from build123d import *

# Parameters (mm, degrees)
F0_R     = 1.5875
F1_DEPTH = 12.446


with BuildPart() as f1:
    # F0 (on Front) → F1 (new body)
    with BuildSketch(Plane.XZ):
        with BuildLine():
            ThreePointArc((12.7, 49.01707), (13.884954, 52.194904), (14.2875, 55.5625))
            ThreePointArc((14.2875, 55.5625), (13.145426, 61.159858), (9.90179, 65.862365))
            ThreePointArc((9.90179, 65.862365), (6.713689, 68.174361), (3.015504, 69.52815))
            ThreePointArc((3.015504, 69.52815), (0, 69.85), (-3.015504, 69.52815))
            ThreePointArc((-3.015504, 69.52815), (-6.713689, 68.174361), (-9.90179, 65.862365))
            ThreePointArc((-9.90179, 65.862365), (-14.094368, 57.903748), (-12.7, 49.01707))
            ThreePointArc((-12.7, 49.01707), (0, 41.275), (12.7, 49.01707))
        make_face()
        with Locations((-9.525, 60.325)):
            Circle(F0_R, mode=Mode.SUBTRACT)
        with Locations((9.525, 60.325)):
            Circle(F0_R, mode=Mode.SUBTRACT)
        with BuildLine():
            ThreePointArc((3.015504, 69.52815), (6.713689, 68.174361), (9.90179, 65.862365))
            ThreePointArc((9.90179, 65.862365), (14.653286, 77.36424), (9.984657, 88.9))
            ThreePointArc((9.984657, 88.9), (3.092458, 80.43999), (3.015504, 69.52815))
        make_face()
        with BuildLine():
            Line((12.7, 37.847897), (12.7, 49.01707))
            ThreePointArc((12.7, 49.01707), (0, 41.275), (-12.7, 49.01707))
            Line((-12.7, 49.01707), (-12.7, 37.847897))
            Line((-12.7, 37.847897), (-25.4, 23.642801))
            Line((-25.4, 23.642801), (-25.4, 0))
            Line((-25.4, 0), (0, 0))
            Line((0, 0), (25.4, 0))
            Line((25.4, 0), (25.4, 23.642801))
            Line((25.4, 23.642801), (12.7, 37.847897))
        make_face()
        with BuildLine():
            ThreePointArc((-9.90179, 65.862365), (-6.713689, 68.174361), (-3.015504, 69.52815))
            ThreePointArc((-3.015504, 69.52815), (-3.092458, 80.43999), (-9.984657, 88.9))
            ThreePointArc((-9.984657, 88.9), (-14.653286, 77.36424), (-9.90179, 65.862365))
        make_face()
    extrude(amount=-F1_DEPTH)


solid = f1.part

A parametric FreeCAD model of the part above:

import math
import FreeCAD as App
import Part
import Sketcher

V = App.Vector
Q = App.Units.Quantity

doc = App.newDocument("Part")
params = doc.addObject("Spreadsheet::Sheet", "Params")
for row, (alias, value) in enumerate([
    ("sketch1_width", "2 in"),
    ("sketch1_diameter", "0.125 in"),
    ("sketch1_radius", "0.5625 in"),
    ("pad1_length", "0.49 in"),
], start=1):
    params.set(f"A{row}", alias)
    params.set(f"B{row}", "=" + value)
    params.setAlias(f"B{row}", alias)

body = doc.addObject("PartDesign::Body", "Body")

sketch1 = body.newObject("Sketcher::SketchObject", "Sketch")
sketch1.AttachmentSupport = (doc.getObject("XZ_Plane"), [""])
sketch1.MapMode = "FlatFace"
sketch1.addGeometry([
    Part.ArcOfCircle(Part.Circle(V(-0.000006, 55.562502, 0), V(0, 0, 1), 14.287506), math.radians(-27.266039), math.radians(-0.000006)),
    Part.ArcOfCircle(Part.Circle(V(-0.000008, 55.562497, 0), V(0, 0, 1), 14.287508), math.radians(0.000012), math.radians(46.128857)),
    Part.ArcOfCircle(Part.Circle(V(-1.786819, 77.423376, 0), V(0, 0, 1), 16.440211), math.radians(-44.685553), math.radians(44.273366)),
    Part.ArcOfCircle(Part.Circle(V(18.562046, 74.874702, 0), V(0, 0, 1), 16.440213), math.radians(121.44852), math.radians(198.97841)),
    Part.ArcOfCircle(Part.Circle(V(0, 55.562519, 0), V(0, 0, 1), 14.287481), math.radians(77.81557), math.radians(102.18443)),
    Part.ArcOfCircle(Part.Circle(V(-18.562046, 74.874702, 0), V(0, 0, 1), 16.440213), math.radians(-18.97841), math.radians(58.55148)),
    Part.ArcOfCircle(Part.Circle(V(1.786819, 77.423376, 0), V(0, 0, 1), 16.440211), math.radians(135.726634), math.radians(224.685553)),
    Part.ArcOfCircle(Part.Circle(V(0.000001, 55.5625, 0), V(0, 0, 1), 14.287501), math.radians(133.871133), math.radians(207.266042)),
    Part.LineSegment(V(-12.7, 49.01707, 0), V(-12.7, 37.847897, 0)),
    Part.LineSegment(V(-12.7, 37.847897, 0), V(-25.4, 23.642801, 0)),
    Part.LineSegment(V(-25.4, 23.642801, 0), V(-25.4, 0, 0)),
    Part.LineSegment(V(-25.4, 0, 0), V(25.4, 0, 0)),
    Part.LineSegment(V(25.4, 0, 0), V(25.4, 23.642801, 0)),
    Part.LineSegment(V(25.4, 23.642801, 0), V(12.7, 37.847897, 0)),
    Part.LineSegment(V(12.7, 37.847897, 0), V(12.7, 49.01707, 0)),
    Part.Circle(V(-9.525, 60.325, 0), V(0, 0, 1), 1.5875),
    Part.Circle(V(9.525, 60.325, 0), V(0, 0, 1), 1.5875),
], False)
sketch1.addConstraint([
    Sketcher.Constraint("Tangent", 0, 2, 1, 1),
    Sketcher.Constraint("Coincident", 1, 2, 2, 1),
    Sketcher.Constraint("Coincident", 2, 2, 3, 1),
    Sketcher.Constraint("Coincident", 3, 2, 4, 1),
    Sketcher.Constraint("Coincident", 4, 2, 5, 1),
    Sketcher.Constraint("Coincident", 5, 2, 6, 1),
    Sketcher.Constraint("Coincident", 6, 2, 7, 1),
    Sketcher.Constraint("Coincident", 7, 2, 8, 1),
    Sketcher.Constraint("Coincident", 8, 2, 9, 1),
    Sketcher.Constraint("Coincident", 9, 2, 10, 1),
    Sketcher.Constraint("Coincident", 10, 2, 11, 1),
    Sketcher.Constraint("Coincident", 11, 2, 12, 1),
    Sketcher.Constraint("Coincident", 12, 2, 13, 1),
    Sketcher.Constraint("Coincident", 13, 2, 14, 1),
    Sketcher.Constraint("Coincident", 14, 2, 0, 1),
    Sketcher.Constraint("Vertical", 8),
    Sketcher.Constraint("Vertical", 10),
    Sketcher.Constraint("Horizontal", 11),
    Sketcher.Constraint("Vertical", 12),
    Sketcher.Constraint("Vertical", 14),
    Sketcher.Constraint("Coincident", 7, 3, 0, 3),
    Sketcher.Constraint("Equal", 2, 3),
    Sketcher.Constraint("Equal", 3, 5),
    Sketcher.Constraint("Equal", 5, 6),
    Sketcher.Constraint("Equal", 15, 16),
    Sketcher.Constraint("Symmetric", 10, 2, 11, 2, -1, 1),
    Sketcher.Constraint("Symmetric", 3, 3, 5, 3, -2),
    Sketcher.Constraint("Symmetric", 2, 3, 6, 3, -2),
    Sketcher.Constraint("Symmetric", 15, 3, 16, 3, -2),
    Sketcher.Constraint("Symmetric", 8, 2, 13, 2, -2),
    Sketcher.Constraint("PointOnObject", 4, 3, -2),
    Sketcher.Constraint("PointOnObject", 7, 3, -2),
    Sketcher.Constraint("Horizontal", 7, 3, 0, 2),
    Sketcher.Constraint("Horizontal", 1, 2, 6, 2),
    Sketcher.Constraint("Horizontal", 9, 2, 12, 2),
    Sketcher.Constraint("Horizontal", 7, 2, 14, 2),
    Sketcher.Constraint("DistanceX", 11, 1, 11, 2, Q("2 in")),
    Sketcher.Constraint("Diameter", 15, Q("0.125 in")),
    Sketcher.Constraint("Radius", 7, Q("0.5625 in")),
    Sketcher.Constraint("DistanceY", -1, 1, 2, 2, Q("3.5 in")),
    Sketcher.Constraint("DistanceX", 7, 2, -1, 1, Q("0.5 in")),
    Sketcher.Constraint("DistanceY", -1, 1, 0, 3, Q("2.1875001 in")),
    Sketcher.Constraint("DistanceX", 15, 3, -1, 1, Q("0.375 in")),
    Sketcher.Constraint("DistanceY", -1, 1, 15, 3, Q("2.375 in")),
    Sketcher.Constraint("Radius", 2, Q("16.440211 mm")),
    Sketcher.Constraint("Radius", 4, Q("14.287481 mm")),
    Sketcher.Constraint("DistanceY", 10, 2, 10, 1, Q("23.642801 mm")),
    Sketcher.Constraint("DistanceY", -1, 1, 3, 3, Q("74.874702 mm")),
    Sketcher.Constraint("DistanceY", 8, 2, 1, 3, Q("17.7146 mm")),
    Sketcher.Constraint("DistanceX", 2, 3, -1, 1, Q("1.786819 mm")),
    Sketcher.Constraint("DistanceY", -1, 1, 4, 3, Q("55.562519 mm")),
    Sketcher.Constraint("DistanceX", -1, 1, 1, 2, Q("9.90179 mm")),
])
sketch1.setExpression("Constraints[36]", "Params.sketch1_width")
sketch1.setExpression("Constraints[37]", "Params.sketch1_diameter")
sketch1.setExpression("Constraints[38]", "Params.sketch1_radius")
pad1 = body.newObject("PartDesign::Pad", "Pad")
pad1.Profile = sketch1
pad1.setExpression("Length", "Params.pad1_length")
pad1.Reversed = True

doc.recompute()
